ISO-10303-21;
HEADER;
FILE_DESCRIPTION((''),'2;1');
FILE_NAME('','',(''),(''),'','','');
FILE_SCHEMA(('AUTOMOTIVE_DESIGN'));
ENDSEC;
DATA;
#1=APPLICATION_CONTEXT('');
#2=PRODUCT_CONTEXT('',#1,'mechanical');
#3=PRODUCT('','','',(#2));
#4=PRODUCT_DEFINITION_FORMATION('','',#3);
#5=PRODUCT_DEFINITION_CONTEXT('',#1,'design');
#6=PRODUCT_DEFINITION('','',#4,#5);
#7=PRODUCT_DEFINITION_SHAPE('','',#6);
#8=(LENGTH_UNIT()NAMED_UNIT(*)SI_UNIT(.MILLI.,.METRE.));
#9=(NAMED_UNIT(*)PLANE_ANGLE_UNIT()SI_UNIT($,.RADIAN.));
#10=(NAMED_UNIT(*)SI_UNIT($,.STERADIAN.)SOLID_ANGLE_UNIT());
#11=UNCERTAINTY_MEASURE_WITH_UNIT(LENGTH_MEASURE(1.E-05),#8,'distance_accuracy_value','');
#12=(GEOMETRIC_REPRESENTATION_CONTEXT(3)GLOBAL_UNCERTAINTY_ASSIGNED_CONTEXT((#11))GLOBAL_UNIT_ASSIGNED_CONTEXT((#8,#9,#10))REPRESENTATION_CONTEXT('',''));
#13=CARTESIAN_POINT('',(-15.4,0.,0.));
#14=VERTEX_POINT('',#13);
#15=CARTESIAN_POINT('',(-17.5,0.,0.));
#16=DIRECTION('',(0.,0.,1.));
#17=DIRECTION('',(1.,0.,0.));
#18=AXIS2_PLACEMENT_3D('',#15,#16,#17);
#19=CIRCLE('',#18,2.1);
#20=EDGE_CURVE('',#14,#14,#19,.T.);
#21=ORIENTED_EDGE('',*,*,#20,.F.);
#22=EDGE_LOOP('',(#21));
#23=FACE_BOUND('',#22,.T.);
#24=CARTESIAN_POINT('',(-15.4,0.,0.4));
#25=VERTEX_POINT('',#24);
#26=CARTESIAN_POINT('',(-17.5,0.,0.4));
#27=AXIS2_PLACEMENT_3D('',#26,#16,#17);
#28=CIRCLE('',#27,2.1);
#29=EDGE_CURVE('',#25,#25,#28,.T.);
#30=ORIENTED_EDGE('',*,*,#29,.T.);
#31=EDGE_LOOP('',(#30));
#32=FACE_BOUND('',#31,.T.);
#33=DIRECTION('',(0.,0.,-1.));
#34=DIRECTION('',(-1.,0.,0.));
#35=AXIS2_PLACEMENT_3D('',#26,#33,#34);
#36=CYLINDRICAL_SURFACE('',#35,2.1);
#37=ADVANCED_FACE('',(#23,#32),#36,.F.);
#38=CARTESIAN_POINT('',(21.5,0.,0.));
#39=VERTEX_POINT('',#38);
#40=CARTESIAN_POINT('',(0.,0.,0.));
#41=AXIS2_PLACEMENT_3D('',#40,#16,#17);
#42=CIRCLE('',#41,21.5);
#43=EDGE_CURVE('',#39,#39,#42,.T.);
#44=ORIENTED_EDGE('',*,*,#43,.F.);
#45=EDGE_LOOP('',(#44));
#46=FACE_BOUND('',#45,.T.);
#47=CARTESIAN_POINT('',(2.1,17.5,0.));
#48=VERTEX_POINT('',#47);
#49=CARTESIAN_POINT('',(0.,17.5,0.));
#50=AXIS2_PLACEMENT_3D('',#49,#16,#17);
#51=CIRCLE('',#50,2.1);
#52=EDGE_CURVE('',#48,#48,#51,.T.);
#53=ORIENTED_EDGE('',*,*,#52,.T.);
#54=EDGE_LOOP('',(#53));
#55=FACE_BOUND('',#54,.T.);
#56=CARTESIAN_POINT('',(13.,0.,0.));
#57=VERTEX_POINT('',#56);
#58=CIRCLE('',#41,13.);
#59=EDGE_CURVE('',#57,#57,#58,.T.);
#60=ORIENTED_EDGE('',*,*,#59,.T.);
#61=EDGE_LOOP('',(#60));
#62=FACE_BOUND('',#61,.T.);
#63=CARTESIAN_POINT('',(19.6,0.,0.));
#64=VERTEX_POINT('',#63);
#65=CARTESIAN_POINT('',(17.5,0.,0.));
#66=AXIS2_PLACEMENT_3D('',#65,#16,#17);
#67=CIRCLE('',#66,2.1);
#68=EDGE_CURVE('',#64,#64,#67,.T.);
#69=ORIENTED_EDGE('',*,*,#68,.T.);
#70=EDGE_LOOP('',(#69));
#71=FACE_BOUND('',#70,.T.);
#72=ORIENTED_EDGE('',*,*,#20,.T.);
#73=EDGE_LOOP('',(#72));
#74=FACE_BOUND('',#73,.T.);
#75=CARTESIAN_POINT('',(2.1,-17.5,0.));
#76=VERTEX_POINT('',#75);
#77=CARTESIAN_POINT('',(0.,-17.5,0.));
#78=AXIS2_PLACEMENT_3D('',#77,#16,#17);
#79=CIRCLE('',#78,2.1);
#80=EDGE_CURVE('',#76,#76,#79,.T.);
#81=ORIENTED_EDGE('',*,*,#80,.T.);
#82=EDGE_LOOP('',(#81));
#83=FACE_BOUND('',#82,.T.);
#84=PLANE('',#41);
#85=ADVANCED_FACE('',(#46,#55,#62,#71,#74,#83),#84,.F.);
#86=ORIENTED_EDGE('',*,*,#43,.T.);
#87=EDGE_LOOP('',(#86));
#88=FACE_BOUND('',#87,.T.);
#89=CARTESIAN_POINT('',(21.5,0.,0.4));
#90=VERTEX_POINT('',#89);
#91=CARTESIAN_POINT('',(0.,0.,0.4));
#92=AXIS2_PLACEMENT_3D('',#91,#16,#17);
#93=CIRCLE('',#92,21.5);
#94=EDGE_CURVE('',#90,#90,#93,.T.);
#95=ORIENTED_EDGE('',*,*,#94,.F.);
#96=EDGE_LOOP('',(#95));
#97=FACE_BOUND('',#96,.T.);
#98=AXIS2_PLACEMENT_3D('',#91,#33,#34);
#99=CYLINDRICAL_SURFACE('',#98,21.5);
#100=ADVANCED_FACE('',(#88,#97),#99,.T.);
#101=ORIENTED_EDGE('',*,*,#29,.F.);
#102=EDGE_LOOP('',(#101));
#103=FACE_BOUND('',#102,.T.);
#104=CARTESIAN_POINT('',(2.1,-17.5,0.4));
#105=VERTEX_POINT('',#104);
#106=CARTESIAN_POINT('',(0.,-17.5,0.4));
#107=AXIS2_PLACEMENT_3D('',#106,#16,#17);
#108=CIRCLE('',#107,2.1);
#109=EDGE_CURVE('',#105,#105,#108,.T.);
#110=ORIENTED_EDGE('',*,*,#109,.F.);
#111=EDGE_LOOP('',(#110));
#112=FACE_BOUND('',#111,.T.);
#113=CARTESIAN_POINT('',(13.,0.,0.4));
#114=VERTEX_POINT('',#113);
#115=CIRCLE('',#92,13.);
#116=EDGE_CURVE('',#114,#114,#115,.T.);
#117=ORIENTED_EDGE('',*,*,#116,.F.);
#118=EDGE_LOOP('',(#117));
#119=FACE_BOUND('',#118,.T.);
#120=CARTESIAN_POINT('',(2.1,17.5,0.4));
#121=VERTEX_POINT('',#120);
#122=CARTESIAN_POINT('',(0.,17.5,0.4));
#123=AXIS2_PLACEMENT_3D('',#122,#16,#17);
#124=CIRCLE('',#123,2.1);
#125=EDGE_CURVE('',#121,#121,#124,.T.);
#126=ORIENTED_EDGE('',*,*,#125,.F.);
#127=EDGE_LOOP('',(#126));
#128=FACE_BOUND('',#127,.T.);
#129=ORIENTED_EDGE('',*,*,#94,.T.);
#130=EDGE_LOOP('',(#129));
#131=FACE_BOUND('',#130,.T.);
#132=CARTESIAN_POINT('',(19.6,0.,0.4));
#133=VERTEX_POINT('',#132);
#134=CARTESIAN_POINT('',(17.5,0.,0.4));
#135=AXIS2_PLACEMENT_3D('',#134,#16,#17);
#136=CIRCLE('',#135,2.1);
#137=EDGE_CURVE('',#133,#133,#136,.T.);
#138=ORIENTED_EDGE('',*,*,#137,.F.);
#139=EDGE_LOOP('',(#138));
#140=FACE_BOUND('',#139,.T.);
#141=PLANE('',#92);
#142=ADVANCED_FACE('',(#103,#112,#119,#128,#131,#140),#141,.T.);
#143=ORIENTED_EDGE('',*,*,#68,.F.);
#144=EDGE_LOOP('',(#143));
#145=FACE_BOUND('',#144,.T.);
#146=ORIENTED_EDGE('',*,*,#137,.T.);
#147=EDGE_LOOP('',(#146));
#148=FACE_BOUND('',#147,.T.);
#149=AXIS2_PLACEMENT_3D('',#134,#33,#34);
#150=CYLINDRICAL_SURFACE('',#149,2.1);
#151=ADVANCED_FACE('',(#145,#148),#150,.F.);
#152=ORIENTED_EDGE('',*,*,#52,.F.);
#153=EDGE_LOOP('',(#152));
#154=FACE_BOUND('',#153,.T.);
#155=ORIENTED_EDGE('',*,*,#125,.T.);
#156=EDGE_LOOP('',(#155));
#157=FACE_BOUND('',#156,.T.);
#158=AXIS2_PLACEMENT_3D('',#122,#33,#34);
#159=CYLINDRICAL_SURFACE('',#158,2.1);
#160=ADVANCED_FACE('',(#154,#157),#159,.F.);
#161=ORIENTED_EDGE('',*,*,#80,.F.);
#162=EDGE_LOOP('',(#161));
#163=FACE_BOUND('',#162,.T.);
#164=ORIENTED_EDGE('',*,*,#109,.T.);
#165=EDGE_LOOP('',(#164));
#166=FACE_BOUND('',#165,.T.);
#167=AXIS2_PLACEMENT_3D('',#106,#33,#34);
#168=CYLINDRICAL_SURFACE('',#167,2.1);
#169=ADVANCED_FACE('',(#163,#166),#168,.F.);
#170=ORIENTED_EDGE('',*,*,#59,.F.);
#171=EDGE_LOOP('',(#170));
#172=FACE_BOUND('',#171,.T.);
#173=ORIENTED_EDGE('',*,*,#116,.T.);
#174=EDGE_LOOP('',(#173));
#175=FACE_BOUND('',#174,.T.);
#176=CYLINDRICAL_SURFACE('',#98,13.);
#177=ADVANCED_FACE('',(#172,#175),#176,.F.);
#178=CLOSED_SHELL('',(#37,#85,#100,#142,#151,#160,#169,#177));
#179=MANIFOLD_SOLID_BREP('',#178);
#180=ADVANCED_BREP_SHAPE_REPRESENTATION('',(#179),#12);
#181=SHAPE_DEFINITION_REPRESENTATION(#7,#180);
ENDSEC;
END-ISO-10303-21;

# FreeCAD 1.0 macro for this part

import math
import FreeCAD as App
import Part
import Sketcher
Q = App.Units.Quantity

doc = App.newDocument("Part")
body = doc.addObject("PartDesign::Body", "Body")

sketch1 = body.newObject("Sketcher::SketchObject", "Sketch")
sketch1.AttachmentSupport = (doc.getObject("XY_Plane"), [""])
sketch1.MapMode = "FlatFace"
sketch1.addGeometry([
    Part.ArcOfCircle(Part.Circle(App.Vector(0, 0, 0), App.Vector(0, 0, 1), 21.5), math.radians(81.13), math.radians(90)),
    Part.ArcOfCircle(Part.Circle(App.Vector(0, 0, 0), App.Vector(0, 0, 1), 21.5), math.radians(90), math.radians(98.87)),
    Part.ArcOfCircle(Part.Circle(App.Vector(0, 17.5, 0), App.Vector(0, 0, 1), 5), math.radians(132), math.radians(188)),
    Part.ArcOfCircle(Part.Circle(App.Vector(0, 0, 0), App.Vector(0, 0, 1), 17.5), math.radians(106), math.radians(164)),
    Part.ArcOfCircle(Part.Circle(App.Vector(-17.5, 0, 0), App.Vector(0, 0, 1), 5), math.radians(82), math.radians(138)),
    Part.ArcOfCircle(Part.Circle(App.Vector(0, 0, 0), App.Vector(0, 0, 1), 21.5), math.radians(171.13), math.radians(188.87)),
    Part.ArcOfCircle(Part.Circle(App.Vector(-17.5, 0, 0), App.Vector(0, 0, 1), 5), math.radians(-138), math.radians(-82)),
    Part.ArcOfCircle(Part.Circle(App.Vector(0, 0, 0), App.Vector(0, 0, 1), 17.5), math.radians(-164), math.radians(-106)),
    Part.ArcOfCircle(Part.Circle(App.Vector(0, -17.5, 0), App.Vector(0, 0, 1), 5), math.radians(172), math.radians(228)),
    Part.ArcOfCircle(Part.Circle(App.Vector(0, 0, 0), App.Vector(0, 0, 1), 21.5), math.radians(-98.87), math.radians(-81.13)),
    Part.ArcOfCircle(Part.Circle(App.Vector(0, -17.5, 0), App.Vector(0, 0, 1), 5), math.radians(-48), math.radians(8)),
    Part.ArcOfCircle(Part.Circle(App.Vector(0, 0, 0), App.Vector(0, 0, 1), 17.5), math.radians(-74), math.radians(-16)),
    Part.ArcOfCircle(Part.Circle(App.Vector(17.5, 0, 0), App.Vector(0, 0, 1), 5), math.radians(-98), math.radians(-42)),
    Part.ArcOfCircle(Part.Circle(App.Vector(0, 0, 0), App.Vector(0, 0, 1), 21.5), math.radians(-8.87), math.radians(8.87)),
    Part.ArcOfCircle(Part.Circle(App.Vector(17.5, 0, 0), App.Vector(0, 0, 1), 5), math.radians(42), math.radians(98)),
    Part.ArcOfCircle(Part.Circle(App.Vector(0, 0, 0), App.Vector(0, 0, 1), 17.5), math.radians(16), math.radians(74)),
    Part.ArcOfCircle(Part.Circle(App.Vector(0, 17.5, 0), App.Vector(0, 0, 1), 5), math.radians(-8), math.radians(48)),
    Part.Circle(App.Vector(17.5, 0, 0), App.Vector(0, 0, 1), 2.1),
    Part.Circle(App.Vector(0, -17.5, 0), App.Vector(0, 0, 1), 2.1),
    Part.Circle(App.Vector(0, 0, 0), App.Vector(0, 0, 1), 13),
    Part.Circle(App.Vector(0, 17.5, 0), App.Vector(0, 0, 1), 2.1),
    Part.Circle(App.Vector(-17.5, 0, 0), App.Vector(0, 0, 1), 2.1),
], False)
sketch1.addConstraint([
    Sketcher.Constraint("Tangent", 0, 2, 1, 1),
    Sketcher.Constraint("Coincident", 1, 2, 2, 1),
    Sketcher.Constraint("Coincident", 2, 2, 3, 1),
    Sketcher.Constraint("Coincident", 3, 2, 4, 1),
    Sketcher.Constraint("Coincident", 4, 2, 5, 1),
    Sketcher.Constraint("Coincident", 5, 2, 6, 1),
    Sketcher.Constraint("Coincident", 6, 2, 7, 1),
    Sketcher.Constraint("Coincident", 7, 2, 8, 1),
    Sketcher.Constraint("Coincident", 8, 2, 9, 1),
    Sketcher.Constraint("Coincident", 9, 2, 10, 1),
    Sketcher.Constraint("Coincident", 10, 2, 11, 1),
    Sketcher.Constraint("Coincident", 11, 2, 12, 1),
    Sketcher.Constraint("Coincident", 12, 2, 13, 1),
    Sketcher.Constraint("Coincident", 13, 2, 14, 1),
    Sketcher.Constraint("Coincident", 14, 2, 15, 1),
    Sketcher.Constraint("Coincident", 15, 2, 16, 1),
    Sketcher.Constraint("Coincident", 16, 2, 0, 1),
    Sketcher.Constraint("Coincident", 0, 3, -1, 1),
    Sketcher.Constraint("Coincident", 3, 3, -1, 1),
    Sketcher.Constraint("Coincident", 5, 3, -1, 1),
    Sketcher.Constraint("Coincident", 7, 3, -1, 1),
    Sketcher.Constraint("Coincident", 9, 3, -1, 1),
    Sketcher.Constraint("Coincident", 11, 3, -1, 1),
    Sketcher.Constraint("Coincident", 13, 3, -1, 1),
    Sketcher.Constraint("Coincident", 15, 3, -1, 1),
    Sketcher.Constraint("Coincident", 19, 3, -1, 1),
    Sketcher.Constraint("Coincident", 6, 3, 4, 3),
    Sketcher.Constraint("Coincident", 10, 3, 8, 3),
    Sketcher.Constraint("Coincident", 14, 3, 12, 3),
    Sketcher.Constraint("Coincident", 16, 3, 2, 3),
    Sketcher.Constraint("Coincident", 17, 3, 12, 3),
    Sketcher.Constraint("Coincident", 18, 3, 8, 3),
    Sketcher.Constraint("Coincident", 20, 3, 2, 3),
    Sketcher.Constraint("Coincident", 21, 3, 4, 3),
    Sketcher.Constraint("Equal", 0, 1),
    Sketcher.Constraint("Equal", 2, 4),
    Sketcher.Constraint("Equal", 1, 5),
    Sketcher.Constraint("Equal", 4, 6),
    Sketcher.Constraint("Equal", 3, 7),
    Sketcher.Constraint("Equal", 6, 8),
    Sketcher.Constraint("Equal", 5, 9),
    Sketcher.Constraint("Equal", 8, 10),
    Sketcher.Constraint("Equal", 7, 11),
    Sketcher.Constraint("Equal", 10, 12),
    Sketcher.Constraint("Equal", 9, 13),
    Sketcher.Constraint("Equal", 12, 14),
    Sketcher.Constraint("Equal", 11, 15),
    Sketcher.Constraint("Equal", 14, 16),
    Sketcher.Constraint("Equal", 17, 18),
    Sketcher.Constraint("Equal", 18, 20),
    Sketcher.Constraint("Equal", 20, 21),
    Sketcher.Constraint("Symmetric", 2, 3, 8, 3, -1, 1),
    Sketcher.Constraint("Symmetric", 4, 3, 12, 3, -1, 1),
    Sketcher.Constraint("PointOnObject", 2, 3, -2),
    Sketcher.Constraint("PointOnObject", 4, 3, -1),
    Sketcher.Constraint("PointOnObject", 0, 2, -2),
    Sketcher.Constraint("Diameter", 19, Q("26 mm")),
    Sketcher.Constraint("Radius", 2, Q("5 mm")),
    Sketcher.Constraint("Diameter", 17, Q("4.2 mm")),
    Sketcher.Constraint("Radius", 0, Q("21.5 mm")),
    Sketcher.Constraint("Radius", 3, Q("17.5 mm")),
    Sketcher.Constraint("DistanceY", 20, 3, 0, 2, Q("4 mm")),
    Sketcher.Constraint("DistanceX", 4, 3, -1, 1, Q("17.5 mm")),
])
pad1 = body.newObject("PartDesign::Pad", "Pad")
pad1.Profile = sketch1
pad1.Length = 0.4

sketch2 = body.newObject("Sketcher::SketchObject", "Sketch001")
sketch2.AttachmentSupport = (doc.getObject("XY_Plane"), [""])
sketch2.MapMode = "FlatFace"
sketch2.addGeometry([
    Part.ArcOfCircle(Part.Circle(App.Vector(0, 0, 0), App.Vector(0, 0, 1), 21.5), math.radians(-81), math.radians(-9)),
    Part.ArcOfCircle(Part.Circle(App.Vector(17.5, 0, 0), App.Vector(0, 0, 1), 5), math.radians(-98), math.radians(-42)),
    Part.ArcOfCircle(Part.Circle(App.Vector(0, 0, 0), App.Vector(0, 0, 1), 17.5), math.radians(-74), math.radians(-16)),
    Part.ArcOfCircle(Part.Circle(App.Vector(0, -17.5, 0), App.Vector(0, 0, 1), 5), math.radians(-48), math.radians(8)),
    Part.ArcOfCircle(Part.Circle(App.Vector(-17.5, 0, 0), App.Vector(0, 0, 1), 5), math.radians(-138), math.radians(-82)),
    Part.ArcOfCircle(Part.Circle(App.Vector(0, 0, 0), App.Vector(0, 0, 1), 21.5), math.radians(-171), math.radians(-99)),
    Part.ArcOfCircle(Part.Circle(App.Vector(0, -17.5, 0), App.Vector(0, 0, 1), 5), math.radians(172), math.radians(228)),
    Part.ArcOfCircle(Part.Circle(App.Vector(0, 0, 0), App.Vector(0, 0, 1), 17.5), math.radians(-164), math.radians(-106)),
    Part.ArcOfCircle(Part.Circle(App.Vector(0, 17.5, 0), App.Vector(0, 0, 1), 5), math.radians(132), math.radians(188)),
    Part.ArcOfCircle(Part.Circle(App.Vector(0, 0, 0), App.Vector(0, 0, 1), 21.5), math.radians(99), math.radians(171)),
    Part.ArcOfCircle(Part.Circle(App.Vector(-17.5, 0, 0), App.Vector(0, 0, 1), 5), math.radians(82), math.radians(138)),
    Part.ArcOfCircle(Part.Circle(App.Vector(0, 0, 0), App.Vector(0, 0, 1), 17.5), math.radians(106), math.radians(164)),
    Part.ArcOfCircle(Part.Circle(App.Vector(0, 0, 0), App.Vector(0, 0, 1), 21.5), math.radians(9), math.radians(81)),
    Part.ArcOfCircle(Part.Circle(App.Vector(0, 17.5, 0), App.Vector(0, 0, 1), 5), math.radians(-8), math.radians(48)),
    Part.ArcOfCircle(Part.Circle(App.Vector(0, 0, 0), App.Vector(0, 0, 1), 17.5), math.radians(16), math.radians(74)),
    Part.ArcOfCircle(Part.Circle(App.Vector(17.5, 0, 0), App.Vector(0, 0, 1), 5), math.radians(42), math.radians(98)),
], False)
sketch2.addConstraint([
    Sketcher.Constraint("Coincident", 0, 2, 1, 2),
    Sketcher.Constraint("Coincident", 1, 1, 2, 2),
    Sketcher.Constraint("Coincident", 2, 1, 3, 2),
    Sketcher.Constraint("Coincident", 3, 1, 0, 1),
    Sketcher.Constraint("Coincident", 4, 1, 5, 1),
    Sketcher.Constraint("Coincident", 5, 2, 6, 2),
    Sketcher.Constraint("Coincident", 6, 1, 7, 2),
    Sketcher.Constraint("Coincident", 7, 1, 4, 2),
    Sketcher.Constraint("Coincident", 8, 1, 9, 1),
    Sketcher.Constraint("Coincident", 9, 2, 10, 2),
    Sketcher.Constraint("Coincident", 10, 1, 11, 2),
    Sketcher.Constraint("Coincident", 11, 1, 8, 2),
    Sketcher.Constraint("Coincident", 12, 2, 13, 2),
    Sketcher.Constraint("Coincident", 13, 1, 14, 2),
    Sketcher.Constraint("Coincident", 14, 1, 15, 2),
    Sketcher.Constraint("Coincident", 15, 1, 12, 1),
    Sketcher.Constraint("Coincident", 0, 3, -1, 1),
    Sketcher.Constraint("Coincident", 2, 3, -1, 1),
    Sketcher.Constraint("Coincident", 5, 3, -1, 1),
    Sketcher.Constraint("Coincident", 7, 3, -1, 1),
    Sketcher.Constraint("Coincident", 9, 3, -1, 1),
    Sketcher.Constraint("Coincident", 11, 3, -1, 1),
    Sketcher.Constraint("Coincident", 12, 3, -1, 1),
    Sketcher.Constraint("Coincident", 14, 3, -1, 1),
    Sketcher.Constraint("Coincident", 6, 3, 3, 3),
    Sketcher.Constraint("Coincident", 10, 3, 4, 3),
    Sketcher.Constraint("Coincident", 13, 3, 8, 3),
    Sketcher.Constraint("Coincident", 15, 3, 1, 3),
    Sketcher.Constraint("Equal", 1, 3),
    Sketcher.Constraint("Equal", 3, 4),
    Sketcher.Constraint("Equal", 0, 5),
    Sketcher.Constraint("Equal", 4, 6),
    Sketcher.Constraint("Equal", 2, 7),
    Sketcher.Constraint("Equal", 6, 8),
    Sketcher.Constraint("Equal", 5, 9),
    Sketcher.Constraint("Equal", 8, 10),
    Sketcher.Constraint("Equal", 7, 11),
    Sketcher.Constraint("Equal", 9, 12),
    Sketcher.Constraint("Equal", 10, 13),
    Sketcher.Constraint("Equal", 11, 14),
    Sketcher.Constraint("Equal", 13, 15),
    Sketcher.Constraint("Symmetric", 1, 3, 4, 3, -1, 1),
    Sketcher.Constraint("Symmetric", 3, 3, 8, 3, -1, 1),
    Sketcher.Constraint("PointOnObject", 1, 3, -1),
    Sketcher.Constraint("PointOnObject", 3, 3, -2),
    Sketcher.Constraint("Radius", 1, Q("5 mm")),
    Sketcher.Constraint("Radius", 0, Q("21.5 mm")),
    Sketcher.Constraint("Radius", 2, Q("17.5 mm")),
    Sketcher.Constraint("DistanceX", 4, 3, 1, 3, Q("35 mm")),
    Sketcher.Constraint("DistanceY", 3, 3, -1, 1, Q("17.5 mm")),
])
pad2 = body.newObject("PartDesign::Pad", "Pad001")
pad2.Profile = sketch2
pad2.Length = 0.4

doc.recompute()
